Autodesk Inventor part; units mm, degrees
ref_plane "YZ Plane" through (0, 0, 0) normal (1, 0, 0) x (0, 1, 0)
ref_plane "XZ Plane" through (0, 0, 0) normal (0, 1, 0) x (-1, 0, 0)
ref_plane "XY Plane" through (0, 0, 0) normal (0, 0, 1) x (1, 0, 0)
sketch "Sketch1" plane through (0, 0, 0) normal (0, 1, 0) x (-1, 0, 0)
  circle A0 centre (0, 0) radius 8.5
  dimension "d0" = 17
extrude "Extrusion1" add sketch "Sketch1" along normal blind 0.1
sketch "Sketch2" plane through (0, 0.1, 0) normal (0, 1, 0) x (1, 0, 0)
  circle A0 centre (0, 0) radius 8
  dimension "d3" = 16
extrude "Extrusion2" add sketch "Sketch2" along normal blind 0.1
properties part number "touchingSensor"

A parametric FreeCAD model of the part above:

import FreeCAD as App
import Part
import Sketcher
from FreeCAD import Vector
Q = App.Units.Quantity

doc = App.newDocument("Part")
body = doc.addObject("PartDesign::Body", "Body")

# Sketch on XZ plane
sketch1 = doc.addObject("Sketcher::SketchObject", "Sketch")
body.addObject(sketch1)
sketch1.AttachmentSupport = (doc.XZ_Plane, [""])
sketch1.MapMode = "FlatFace"
sketch1.addGeometry(Part.Circle(Vector(0, 0, 0), Vector(0, 0, 1), 8.5), False)
sketch1.addConstraint([
    Sketcher.Constraint("Coincident", 0, 3, -1, 1),
    Sketcher.Constraint("Diameter", 0, Q("17 mm")),
])
pad1 = doc.addObject("PartDesign::Pad", "Pad")
body.addObject(pad1)
pad1.Profile = sketch1
pad1.Length = 0.1
pad1.Reversed = True

# Sketch on XZ plane
sketch2 = doc.addObject("Sketcher::SketchObject", "Sketch001")
body.addObject(sketch2)
sketch2.AttachmentSupport = (doc.XZ_Plane, [""])
sketch2.MapMode = "FlatFace"
sketch2.AttachmentOffset = App.Placement(Vector(0, 0, -0.1), App.Rotation())
sketch2.addGeometry(Part.Circle(Vector(0, 0, 0), Vector(0, 0, 1), 8), False)
sketch2.addConstraint([
    Sketcher.Constraint("Coincident", 0, 3, -1, 1),
    Sketcher.Constraint("Diameter", 0, Q("16 mm")),
])
pad2 = doc.addObject("PartDesign::Pad", "Pad001")
body.addObject(pad2)
pad2.Profile = sketch2
pad2.Length = 0.1
pad2.Reversed = True

doc.recompute()
